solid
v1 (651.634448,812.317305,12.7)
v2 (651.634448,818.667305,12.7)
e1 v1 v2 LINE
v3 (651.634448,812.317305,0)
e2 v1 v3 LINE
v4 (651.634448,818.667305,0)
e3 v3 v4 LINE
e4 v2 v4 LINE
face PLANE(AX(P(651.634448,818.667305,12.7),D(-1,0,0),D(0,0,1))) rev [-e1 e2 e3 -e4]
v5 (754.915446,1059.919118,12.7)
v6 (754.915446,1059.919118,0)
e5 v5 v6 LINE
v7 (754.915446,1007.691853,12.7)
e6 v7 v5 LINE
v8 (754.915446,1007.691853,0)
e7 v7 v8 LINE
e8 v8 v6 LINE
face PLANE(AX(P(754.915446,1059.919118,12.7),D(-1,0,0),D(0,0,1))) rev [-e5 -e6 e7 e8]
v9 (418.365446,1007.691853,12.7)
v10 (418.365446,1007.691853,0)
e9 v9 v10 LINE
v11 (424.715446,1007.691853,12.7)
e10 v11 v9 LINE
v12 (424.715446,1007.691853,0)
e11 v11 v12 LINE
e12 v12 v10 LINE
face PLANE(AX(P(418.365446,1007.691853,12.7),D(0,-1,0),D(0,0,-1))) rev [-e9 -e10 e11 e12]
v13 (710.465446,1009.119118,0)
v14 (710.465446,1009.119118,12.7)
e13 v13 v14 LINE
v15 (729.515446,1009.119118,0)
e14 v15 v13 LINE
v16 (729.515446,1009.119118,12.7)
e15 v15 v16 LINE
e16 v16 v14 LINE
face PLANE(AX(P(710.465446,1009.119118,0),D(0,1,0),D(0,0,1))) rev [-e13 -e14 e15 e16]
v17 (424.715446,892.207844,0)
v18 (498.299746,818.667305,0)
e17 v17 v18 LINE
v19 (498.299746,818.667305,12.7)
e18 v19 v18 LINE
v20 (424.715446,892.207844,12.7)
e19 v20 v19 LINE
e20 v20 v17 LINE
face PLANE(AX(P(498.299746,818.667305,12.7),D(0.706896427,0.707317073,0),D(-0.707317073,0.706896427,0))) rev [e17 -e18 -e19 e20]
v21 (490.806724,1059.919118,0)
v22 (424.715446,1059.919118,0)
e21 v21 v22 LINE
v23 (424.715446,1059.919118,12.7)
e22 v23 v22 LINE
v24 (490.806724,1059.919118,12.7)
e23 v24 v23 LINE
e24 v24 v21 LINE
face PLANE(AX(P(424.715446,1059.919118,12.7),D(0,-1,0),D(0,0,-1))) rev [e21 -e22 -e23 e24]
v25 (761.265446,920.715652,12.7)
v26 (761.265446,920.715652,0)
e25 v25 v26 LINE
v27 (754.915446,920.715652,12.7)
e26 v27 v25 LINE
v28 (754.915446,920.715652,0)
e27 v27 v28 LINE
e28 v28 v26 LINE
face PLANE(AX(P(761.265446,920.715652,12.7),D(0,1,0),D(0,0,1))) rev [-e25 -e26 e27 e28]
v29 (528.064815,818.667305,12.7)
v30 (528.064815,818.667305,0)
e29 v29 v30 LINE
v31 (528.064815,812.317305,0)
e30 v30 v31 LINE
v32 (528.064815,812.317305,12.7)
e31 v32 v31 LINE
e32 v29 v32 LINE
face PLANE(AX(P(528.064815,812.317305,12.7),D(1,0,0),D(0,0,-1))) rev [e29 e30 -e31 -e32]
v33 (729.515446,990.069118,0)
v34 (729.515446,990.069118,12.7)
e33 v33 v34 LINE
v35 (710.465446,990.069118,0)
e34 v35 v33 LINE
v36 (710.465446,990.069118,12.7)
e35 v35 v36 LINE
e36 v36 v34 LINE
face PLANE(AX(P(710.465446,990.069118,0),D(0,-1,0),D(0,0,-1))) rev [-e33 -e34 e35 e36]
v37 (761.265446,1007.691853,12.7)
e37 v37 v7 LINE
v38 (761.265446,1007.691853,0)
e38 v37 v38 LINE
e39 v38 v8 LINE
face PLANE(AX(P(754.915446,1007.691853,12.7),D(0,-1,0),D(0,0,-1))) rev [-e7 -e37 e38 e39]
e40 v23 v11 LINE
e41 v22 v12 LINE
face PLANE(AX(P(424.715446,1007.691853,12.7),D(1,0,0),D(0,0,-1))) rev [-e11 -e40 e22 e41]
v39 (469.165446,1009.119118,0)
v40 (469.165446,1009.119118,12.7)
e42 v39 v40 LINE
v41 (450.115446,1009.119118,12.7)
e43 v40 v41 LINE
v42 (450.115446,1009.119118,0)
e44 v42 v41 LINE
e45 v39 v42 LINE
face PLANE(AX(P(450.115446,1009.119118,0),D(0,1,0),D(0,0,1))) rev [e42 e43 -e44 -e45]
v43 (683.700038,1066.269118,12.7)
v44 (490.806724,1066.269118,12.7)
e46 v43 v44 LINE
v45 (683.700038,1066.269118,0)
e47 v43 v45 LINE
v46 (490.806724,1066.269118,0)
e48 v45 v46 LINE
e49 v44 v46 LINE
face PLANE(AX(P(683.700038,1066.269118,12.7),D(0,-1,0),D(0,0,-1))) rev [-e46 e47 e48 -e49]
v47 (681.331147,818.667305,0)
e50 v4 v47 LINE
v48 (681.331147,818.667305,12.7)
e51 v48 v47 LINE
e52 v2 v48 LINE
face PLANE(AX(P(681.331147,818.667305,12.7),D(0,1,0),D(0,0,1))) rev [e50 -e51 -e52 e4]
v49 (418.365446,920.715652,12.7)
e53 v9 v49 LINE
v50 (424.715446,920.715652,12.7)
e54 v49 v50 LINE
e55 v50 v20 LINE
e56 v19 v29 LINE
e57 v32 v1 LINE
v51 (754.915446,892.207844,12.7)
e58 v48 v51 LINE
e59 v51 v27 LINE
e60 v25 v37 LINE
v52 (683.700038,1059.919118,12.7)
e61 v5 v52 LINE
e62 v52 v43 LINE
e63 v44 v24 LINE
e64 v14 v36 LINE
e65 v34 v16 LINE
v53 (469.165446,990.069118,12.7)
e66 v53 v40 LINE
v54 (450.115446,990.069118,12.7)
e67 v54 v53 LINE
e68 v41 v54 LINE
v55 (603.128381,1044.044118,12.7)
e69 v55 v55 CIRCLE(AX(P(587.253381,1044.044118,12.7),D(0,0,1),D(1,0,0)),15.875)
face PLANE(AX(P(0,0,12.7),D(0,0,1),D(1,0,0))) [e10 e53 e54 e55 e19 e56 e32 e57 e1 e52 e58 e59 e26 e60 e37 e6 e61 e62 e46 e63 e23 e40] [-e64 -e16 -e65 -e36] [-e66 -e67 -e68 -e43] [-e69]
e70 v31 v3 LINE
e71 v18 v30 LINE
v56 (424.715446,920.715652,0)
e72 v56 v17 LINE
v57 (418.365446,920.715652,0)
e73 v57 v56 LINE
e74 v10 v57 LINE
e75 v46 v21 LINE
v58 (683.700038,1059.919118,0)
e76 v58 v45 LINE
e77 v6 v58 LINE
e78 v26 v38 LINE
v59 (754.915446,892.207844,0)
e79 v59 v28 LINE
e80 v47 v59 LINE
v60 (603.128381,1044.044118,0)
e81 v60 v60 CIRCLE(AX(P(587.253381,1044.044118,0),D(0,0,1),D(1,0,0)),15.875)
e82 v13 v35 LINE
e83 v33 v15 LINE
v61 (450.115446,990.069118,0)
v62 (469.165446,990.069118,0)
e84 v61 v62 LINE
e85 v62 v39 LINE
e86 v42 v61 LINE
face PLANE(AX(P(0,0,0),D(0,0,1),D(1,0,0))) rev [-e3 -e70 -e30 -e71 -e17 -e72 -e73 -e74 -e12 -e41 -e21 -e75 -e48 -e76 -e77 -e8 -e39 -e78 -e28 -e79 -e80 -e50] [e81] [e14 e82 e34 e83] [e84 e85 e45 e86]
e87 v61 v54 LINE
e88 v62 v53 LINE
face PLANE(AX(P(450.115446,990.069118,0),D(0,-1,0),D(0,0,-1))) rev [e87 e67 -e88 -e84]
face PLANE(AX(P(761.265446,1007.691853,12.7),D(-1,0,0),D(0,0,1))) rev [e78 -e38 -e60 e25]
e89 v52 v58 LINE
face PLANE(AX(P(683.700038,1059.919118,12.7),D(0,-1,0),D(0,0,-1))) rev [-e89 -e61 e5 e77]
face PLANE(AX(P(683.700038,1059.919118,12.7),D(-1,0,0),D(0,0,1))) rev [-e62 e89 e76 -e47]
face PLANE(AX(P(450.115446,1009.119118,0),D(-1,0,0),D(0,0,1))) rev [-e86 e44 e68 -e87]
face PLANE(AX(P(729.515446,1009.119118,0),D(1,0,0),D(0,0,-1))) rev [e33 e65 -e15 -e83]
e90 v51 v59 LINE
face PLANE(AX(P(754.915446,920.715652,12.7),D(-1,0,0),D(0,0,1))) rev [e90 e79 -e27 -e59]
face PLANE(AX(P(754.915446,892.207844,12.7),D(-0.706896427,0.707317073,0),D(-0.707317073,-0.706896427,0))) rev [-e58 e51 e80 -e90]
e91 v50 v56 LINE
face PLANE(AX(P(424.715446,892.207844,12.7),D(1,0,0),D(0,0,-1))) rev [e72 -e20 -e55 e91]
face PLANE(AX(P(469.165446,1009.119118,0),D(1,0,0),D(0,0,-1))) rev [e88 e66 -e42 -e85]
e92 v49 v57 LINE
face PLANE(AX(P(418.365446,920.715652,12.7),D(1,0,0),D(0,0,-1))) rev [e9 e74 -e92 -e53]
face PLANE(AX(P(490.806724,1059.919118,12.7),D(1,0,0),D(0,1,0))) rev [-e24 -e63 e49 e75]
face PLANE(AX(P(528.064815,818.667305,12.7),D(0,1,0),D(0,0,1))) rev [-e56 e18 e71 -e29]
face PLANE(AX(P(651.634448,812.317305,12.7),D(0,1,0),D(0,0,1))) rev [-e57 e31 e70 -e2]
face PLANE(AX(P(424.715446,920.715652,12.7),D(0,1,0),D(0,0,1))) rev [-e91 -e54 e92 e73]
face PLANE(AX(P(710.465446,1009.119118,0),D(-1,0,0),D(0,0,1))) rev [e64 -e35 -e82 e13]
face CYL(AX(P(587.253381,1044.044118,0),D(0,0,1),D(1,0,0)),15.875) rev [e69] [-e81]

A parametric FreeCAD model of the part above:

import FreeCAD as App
import Part
import Sketcher
Q = App.Units.Quantity

doc = App.newDocument("Part")
params = doc.addObject("Spreadsheet::Sheet", "Params")
for row, (alias, value) in enumerate([
    ("sketch1_width", "0.25 in"),
    ("pad1_length", "0.5 in"),
    ("sketch2_diameter", "1.25 in"),
    ("sketch2_width", "0.75 in"),
], start=1):
    params.set(f"A{row}", alias)
    params.set(f"B{row}", "=" + value)
    params.setAlias(f"B{row}", alias)

body = doc.addObject("PartDesign::Body", "Body")

sketch1 = body.newObject("Sketcher::SketchObject", "Sketch")
sketch1.AttachmentSupport = (doc.getObject("XY_Plane"), [""])
sketch1.MapMode = "FlatFace"
sketch1.addGeometry([
    Part.LineSegment(App.Vector(425, 921, 0), App.Vector(425, 892, 0)),
    Part.LineSegment(App.Vector(425, 892, 0), App.Vector(498, 819, 0)),
    Part.LineSegment(App.Vector(498, 819, 0), App.Vector(528, 819, 0)),
    Part.LineSegment(App.Vector(528, 819, 0), App.Vector(528, 812, 0)),
    Part.LineSegment(App.Vector(528, 812, 0), App.Vector(652, 812, 0)),
    Part.LineSegment(App.Vector(652, 812, 0), App.Vector(652, 819, 0)),
    Part.LineSegment(App.Vector(652, 819, 0), App.Vector(681, 819, 0)),
    Part.LineSegment(App.Vector(681, 819, 0), App.Vector(755, 892, 0)),
    Part.LineSegment(App.Vector(755, 892, 0), App.Vector(755, 921, 0)),
    Part.LineSegment(App.Vector(755, 921, 0), App.Vector(761, 921, 0)),
    Part.LineSegment(App.Vector(761, 921, 0), App.Vector(761, 1008, 0)),
    Part.LineSegment(App.Vector(761, 1008, 0), App.Vector(755, 1008, 0)),
    Part.LineSegment(App.Vector(755, 1008, 0), App.Vector(755, 1060, 0)),
    Part.LineSegment(App.Vector(755, 1060, 0), App.Vector(684, 1060, 0)),
    Part.LineSegment(App.Vector(684, 1060, 0), App.Vector(684, 1066, 0)),
    Part.LineSegment(App.Vector(684, 1066, 0), App.Vector(491, 1066, 0)),
    Part.LineSegment(App.Vector(491, 1066, 0), App.Vector(491, 1060, 0)),
    Part.LineSegment(App.Vector(491, 1060, 0), App.Vector(425, 1060, 0)),
    Part.LineSegment(App.Vector(425, 1060, 0), App.Vector(425, 1008, 0)),
    Part.LineSegment(App.Vector(425, 1008, 0), App.Vector(418, 1008, 0)),
    Part.LineSegment(App.Vector(418, 1008, 0), App.Vector(418, 921, 0)),
    Part.LineSegment(App.Vector(418, 921, 0), App.Vector(425, 921, 0)),
], False)
sketch1.addConstraint([
    Sketcher.Constraint("Coincident", 0, 2, 1, 1),
    Sketcher.Constraint("Coincident", 1, 2, 2, 1),
    Sketcher.Constraint("Coincident", 2, 2, 3, 1),
    Sketcher.Constraint("Coincident", 3, 2, 4, 1),
    Sketcher.Constraint("Coincident", 4, 2, 5, 1),
    Sketcher.Constraint("Coincident", 5, 2, 6, 1),
    Sketcher.Constraint("Coincident", 6, 2, 7, 1),
    Sketcher.Constraint("Coincident", 7, 2, 8, 1),
    Sketcher.Constraint("Coincident", 8, 2, 9, 1),
    Sketcher.Constraint("Coincident", 9, 2, 10, 1),
    Sketcher.Constraint("Coincident", 10, 2, 11, 1),
    Sketcher.Constraint("Coincident", 11, 2, 12, 1),
    Sketcher.Constraint("Coincident", 12, 2, 13, 1),
    Sketcher.Constraint("Coincident", 13, 2, 14, 1),
    Sketcher.Constraint("Coincident", 14, 2, 15, 1),
    Sketcher.Constraint("Coincident", 15, 2, 16, 1),
    Sketcher.Constraint("Coincident", 16, 2, 17, 1),
    Sketcher.Constraint("Coincident", 17, 2, 18, 1),
    Sketcher.Constraint("Coincident", 18, 2, 19, 1),
    Sketcher.Constraint("Coincident", 19, 2, 20, 1),
    Sketcher.Constraint("Coincident", 20, 2, 21, 1),
    Sketcher.Constraint("Coincident", 21, 2, 0, 1),
    Sketcher.Constraint("Vertical", 0),
    Sketcher.Constraint("Horizontal", 2),
    Sketcher.Constraint("Vertical", 3),
    Sketcher.Constraint("Horizontal", 4),
    Sketcher.Constraint("Vertical", 5),
    Sketcher.Constraint("Horizontal", 6),
    Sketcher.Constraint("Vertical", 8),
    Sketcher.Constraint("Horizontal", 9),
    Sketcher.Constraint("Vertical", 10),
    Sketcher.Constraint("Horizontal", 11),
    Sketcher.Constraint("Vertical", 12),
    Sketcher.Constraint("Horizontal", 13),
    Sketcher.Constraint("Vertical", 14),
    Sketcher.Constraint("Horizontal", 15),
    Sketcher.Constraint("Vertical", 16),
    Sketcher.Constraint("Horizontal", 17),
    Sketcher.Constraint("Vertical", 18),
    Sketcher.Constraint("Horizontal", 19),
    Sketcher.Constraint("Vertical", 20),
    Sketcher.Constraint("Horizontal", 21),
    Sketcher.Constraint("Horizontal", 2, 2, 5, 2),
    Sketcher.Constraint("Horizontal", 0, 2, 7, 2),
    Sketcher.Constraint("Horizontal", 13, 2, 16, 2),
    Sketcher.Constraint("Horizontal", 11, 2, 18, 2),
    Sketcher.Constraint("Horizontal", 9, 2, 20, 2),
    Sketcher.Constraint("Vertical", 8, 2, 11, 2),
    Sketcher.Constraint("Vertical", 0, 2, 17, 2),
    Sketcher.Constraint("Equal", 11, 19),
    Sketcher.Constraint("Equal", 21, 3),
    Sketcher.Constraint("Equal", 5, 14),
    Sketcher.Constraint("Equal", 1, 7),
    Sketcher.Constraint("DistanceX", 9, 1, 9, 2, Q("0.25 in")),
    Sketcher.Constraint("DistanceX", 6, 1, 6, 2, 29.696699),
    Sketcher.Constraint("DistanceY", 10, 1, 10, 2, 86.976201),
    Sketcher.Constraint("DistanceX", 2, 1, 2, 2, 29.765069),
    Sketcher.Constraint("DistanceX", 13, 2, 13, 1, 71.215409),
    Sketcher.Constraint("DistanceY", 0, 2, 0, 1, 28.507809),
    Sketcher.Constraint("DistanceX", 0, 2, 1, 2, 73.5843),
    Sketcher.Constraint("DistanceX", 1, 2, 4, 2, 153.334702),
    Sketcher.Constraint("DistanceX", 15, 2, 15, 1, 192.893314),
    Sketcher.Constraint("DistanceY", 12, 1, 12, 2, 52.227265),
    Sketcher.Constraint("DistanceY", -1, 1, 12, 2, 1059.919118),
    Sketcher.Constraint("DistanceY", 1, 2, 0, 2, 73.540538),
    Sketcher.Constraint("DistanceX", -1, 1, 0, 2, 424.715446),
])
sketch1.setExpression("Constraints[53]", "Params.sketch1_width")
pad1 = body.newObject("PartDesign::Pad", "Pad")
pad1.Profile = sketch1
pad1.setExpression("Length", "Params.pad1_length")

sketch2 = body.newObject("Sketcher::SketchObject", "Sketch001")
sketch2.AttachmentSupport = (doc.getObject("XY_Plane"), [""])
sketch2.MapMode = "FlatFace"
sketch2.AttachmentOffset = App.Placement(App.Vector(0, 0, 0.5 * 25.4), App.Rotation())
sketch2.addGeometry([
    Part.Circle(App.Vector(587, 1044, 0), App.Vector(0, 0, 1), 16),
    Part.LineSegment(App.Vector(450, 1009, 0), App.Vector(450, 990, 0)),
    Part.LineSegment(App.Vector(450, 990, 0), App.Vector(469, 990, 0)),
    Part.LineSegment(App.Vector(469, 990, 0), App.Vector(469, 1009, 0)),
    Part.LineSegment(App.Vector(469, 1009, 0), App.Vector(450, 1009, 0)),
    Part.LineSegment(App.Vector(710, 1009, 0), App.Vector(710, 990, 0)),
    Part.LineSegment(App.Vector(710, 990, 0), App.Vector(730, 990, 0)),
    Part.LineSegment(App.Vector(730, 990, 0), App.Vector(730, 1009, 0)),
    Part.LineSegment(App.Vector(730, 1009, 0), App.Vector(710, 1009, 0)),
], False)
sketch2.addConstraint([
    Sketcher.Constraint("Coincident", 1, 2, 2, 1),
    Sketcher.Constraint("Coincident", 2, 2, 3, 1),
    Sketcher.Constraint("Coincident", 3, 2, 4, 1),
    Sketcher.Constraint("Coincident", 4, 2, 1, 1),
    Sketcher.Constraint("Coincident", 5, 2, 6, 1),
    Sketcher.Constraint("Coincident", 6, 2, 7, 1),
    Sketcher.Constraint("Coincident", 7, 2, 8, 1),
    Sketcher.Constraint("Coincident", 8, 2, 5, 1),
    Sketcher.Constraint("Vertical", 1),
    Sketcher.Constraint("Horizontal", 2),
    Sketcher.Constraint("Vertical", 3),
    Sketcher.Constraint("Horizontal", 4),
    Sketcher.Constraint("Vertical", 5),
    Sketcher.Constraint("Horizontal", 6),
    Sketcher.Constraint("Vertical", 7),
    Sketcher.Constraint("Horizontal", 8),
    Sketcher.Constraint("Horizontal", 2, 2, 5, 2),
    Sketcher.Constraint("Horizontal", 4, 2, 7, 2),
    Sketcher.Constraint("Equal", 4, 6),
    Sketcher.Constraint("Equal", 8, 1),
    Sketcher.Constraint("Diameter", 0, Q("1.25 in")),
    Sketcher.Constraint("DistanceX", 1, 2, 6, 2, Q("11 in")),
    Sketcher.Constraint("DistanceX", 2, 1, 2, 2, Q("0.75 in")),
    Sketcher.Constraint("DistanceY", 1, 2, 0, 3, Q("2.125 in")),
    Sketcher.Constraint("DistanceX", -1, 1, 0, 3, 587.253381),
    Sketcher.Constraint("DistanceY", -1, 1, 0, 3, 1044.044118),
    Sketcher.Constraint("DistanceX", -1, 1, 1, 2, 450.115446),
])
sketch2.setExpression("Constraints[20]", "Params.sketch2_diameter")
sketch2.setExpression("Constraints[22]", "Params.sketch2_width")
pocket1 = body.newObject("PartDesign::Pocket", "Pocket")
pocket1.Profile = sketch2
pocket1.Type = "ThroughAll"

doc.recompute()
